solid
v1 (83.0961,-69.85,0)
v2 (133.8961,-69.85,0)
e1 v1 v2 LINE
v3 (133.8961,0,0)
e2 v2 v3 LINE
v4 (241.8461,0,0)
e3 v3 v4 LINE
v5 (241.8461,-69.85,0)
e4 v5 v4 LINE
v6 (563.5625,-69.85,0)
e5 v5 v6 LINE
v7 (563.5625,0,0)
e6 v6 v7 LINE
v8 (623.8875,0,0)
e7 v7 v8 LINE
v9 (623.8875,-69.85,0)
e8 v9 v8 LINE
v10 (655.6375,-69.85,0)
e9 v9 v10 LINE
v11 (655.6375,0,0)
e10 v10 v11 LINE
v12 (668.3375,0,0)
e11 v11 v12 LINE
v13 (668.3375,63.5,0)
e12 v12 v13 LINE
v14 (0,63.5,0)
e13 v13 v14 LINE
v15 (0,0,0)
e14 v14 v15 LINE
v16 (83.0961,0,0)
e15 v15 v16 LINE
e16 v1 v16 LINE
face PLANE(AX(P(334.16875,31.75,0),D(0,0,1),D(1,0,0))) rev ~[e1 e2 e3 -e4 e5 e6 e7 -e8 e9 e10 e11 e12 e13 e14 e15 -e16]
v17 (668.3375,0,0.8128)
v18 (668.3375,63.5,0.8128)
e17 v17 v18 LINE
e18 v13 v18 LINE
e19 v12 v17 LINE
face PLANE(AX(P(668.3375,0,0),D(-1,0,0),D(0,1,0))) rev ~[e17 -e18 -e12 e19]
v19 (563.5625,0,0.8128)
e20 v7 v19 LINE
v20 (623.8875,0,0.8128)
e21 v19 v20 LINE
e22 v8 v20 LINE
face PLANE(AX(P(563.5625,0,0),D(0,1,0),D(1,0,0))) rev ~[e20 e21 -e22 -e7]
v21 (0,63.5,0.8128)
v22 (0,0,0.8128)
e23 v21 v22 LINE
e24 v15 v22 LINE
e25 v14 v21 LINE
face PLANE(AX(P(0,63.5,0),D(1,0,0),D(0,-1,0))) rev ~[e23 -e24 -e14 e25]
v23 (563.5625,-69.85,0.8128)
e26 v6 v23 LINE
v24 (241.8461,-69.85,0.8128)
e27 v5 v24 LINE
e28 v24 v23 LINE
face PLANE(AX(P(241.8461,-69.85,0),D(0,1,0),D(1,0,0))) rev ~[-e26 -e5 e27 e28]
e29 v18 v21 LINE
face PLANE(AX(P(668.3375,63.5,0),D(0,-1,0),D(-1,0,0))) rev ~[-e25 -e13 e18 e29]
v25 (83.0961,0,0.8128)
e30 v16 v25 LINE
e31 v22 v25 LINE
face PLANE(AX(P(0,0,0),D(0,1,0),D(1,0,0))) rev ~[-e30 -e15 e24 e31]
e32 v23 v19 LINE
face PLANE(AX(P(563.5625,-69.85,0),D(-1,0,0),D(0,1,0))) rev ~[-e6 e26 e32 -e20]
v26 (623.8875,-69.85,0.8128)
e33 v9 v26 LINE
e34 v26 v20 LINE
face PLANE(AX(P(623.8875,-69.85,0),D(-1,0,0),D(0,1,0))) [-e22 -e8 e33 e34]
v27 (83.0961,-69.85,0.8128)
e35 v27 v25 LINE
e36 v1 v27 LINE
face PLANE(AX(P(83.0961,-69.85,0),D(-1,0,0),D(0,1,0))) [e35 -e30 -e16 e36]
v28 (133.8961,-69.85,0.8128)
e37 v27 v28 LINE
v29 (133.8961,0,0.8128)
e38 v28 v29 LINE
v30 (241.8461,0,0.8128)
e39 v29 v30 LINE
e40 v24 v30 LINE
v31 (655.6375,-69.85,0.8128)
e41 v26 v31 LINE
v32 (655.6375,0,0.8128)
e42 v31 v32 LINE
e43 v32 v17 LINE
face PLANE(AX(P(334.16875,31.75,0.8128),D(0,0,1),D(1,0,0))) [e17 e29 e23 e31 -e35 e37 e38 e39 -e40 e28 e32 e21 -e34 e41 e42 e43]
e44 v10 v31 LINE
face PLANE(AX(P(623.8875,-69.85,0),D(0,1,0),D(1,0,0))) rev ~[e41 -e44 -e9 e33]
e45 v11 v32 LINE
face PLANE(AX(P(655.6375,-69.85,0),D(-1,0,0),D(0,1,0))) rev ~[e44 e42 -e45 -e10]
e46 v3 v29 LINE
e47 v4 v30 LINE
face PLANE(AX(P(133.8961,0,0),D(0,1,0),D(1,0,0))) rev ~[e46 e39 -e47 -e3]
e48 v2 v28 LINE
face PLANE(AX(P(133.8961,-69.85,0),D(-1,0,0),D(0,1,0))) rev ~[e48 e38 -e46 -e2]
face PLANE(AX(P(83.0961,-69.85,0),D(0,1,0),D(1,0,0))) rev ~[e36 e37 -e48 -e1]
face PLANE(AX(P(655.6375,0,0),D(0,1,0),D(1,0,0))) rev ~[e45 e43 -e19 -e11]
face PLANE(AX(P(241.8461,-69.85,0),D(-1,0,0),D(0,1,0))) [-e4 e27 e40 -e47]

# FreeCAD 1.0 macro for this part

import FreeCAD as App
import Part
import Sketcher
Q = App.Units.Quantity


def add_polygon(sketch, points):
    """Adds a closed chain of lines whose ends are joined by coincident constraints."""
    first, n = sketch.GeometryCount, len(points)
    for a, b in zip(points, points[1:] + points[:1]):
        sketch.addGeometry(Part.LineSegment(App.Vector(*a, 0), App.Vector(*b, 0)), False)
    for i in range(n):
        sketch.addConstraint(Sketcher.Constraint("Coincident", first + i, 2, first + (i + 1) % n, 1))

doc = App.newDocument("Part")
body = doc.addObject("PartDesign::Body", "Body")

# Sketch on XY plane
sketch1 = body.newObject("Sketcher::SketchObject", "Sketch")
sketch1.AttachmentSupport = (doc.getObject("XY_Plane"), [""])
sketch1.MapMode = "FlatFace"
add_polygon(sketch1, [(0, 64), (0, 0), (83, 0), (83, -70), (134, -70), (134, 0), (242, 0), (242, -70), (564, -70), (564, 0), (624, 0), (624, -70), (656, -70), (656, 0), (668, 0), (668, 64)])  # lines 0-15
sketch1.addConstraint([
    Sketcher.Constraint("Vertical", 0),
    Sketcher.Constraint("Horizontal", 1),
    Sketcher.Constraint("Vertical", 2),
    Sketcher.Constraint("Horizontal", 3),
    Sketcher.Constraint("Vertical", 4),
    Sketcher.Constraint("Horizontal", 5),
    Sketcher.Constraint("Vertical", 6),
    Sketcher.Constraint("Horizontal", 7),
    Sketcher.Constraint("Vertical", 8),
    Sketcher.Constraint("Horizontal", 9),
    Sketcher.Constraint("Vertical", 10),
    Sketcher.Constraint("Horizontal", 11),
    Sketcher.Constraint("Vertical", 12),
    Sketcher.Constraint("Horizontal", 13),
    Sketcher.Constraint("Vertical", 14),
    Sketcher.Constraint("Horizontal", 15),
    Sketcher.Constraint("Coincident", 0, 2, -1, 1),
    Sketcher.Constraint("PointOnObject", 4, 2, -1),
    Sketcher.Constraint("PointOnObject", 8, 2, -1),
    Sketcher.Constraint("PointOnObject", 12, 2, -1),
    Sketcher.Constraint("Horizontal", 3, 2, 6, 2),
    Sketcher.Constraint("Horizontal", 7, 2, 10, 2),
    Sketcher.Constraint("DistanceX", 3, 1, 3, 2, Q("2 in")),
    Sketcher.Constraint("DistanceX", 13, 1, 13, 2, Q("0.5 in")),
    Sketcher.Constraint("DistanceY", 0, 2, 0, 1, Q("2.5 in")),
    Sketcher.Constraint("DistanceX", 5, 1, 5, 2, Q("4.25 in")),
    Sketcher.Constraint("DistanceX", 11, 1, 11, 2, Q("1.25 in")),
    Sketcher.Constraint("DistanceY", 2, 2, 2, 1, Q("2.75 in")),
    Sketcher.Constraint("DistanceX", 7, 1, 7, 2, Q("12.666 in")),
    Sketcher.Constraint("DistanceX", 9, 1, 9, 2, Q("2.375 in")),
    Sketcher.Constraint("DistanceX", 15, 2, 15, 1, Q("26.3125 in")),
])
pad1 = body.newObject("PartDesign::Pad", "Pad")
pad1.Profile = sketch1
pad1.Length = Q("0.032 in")

doc.recompute()
